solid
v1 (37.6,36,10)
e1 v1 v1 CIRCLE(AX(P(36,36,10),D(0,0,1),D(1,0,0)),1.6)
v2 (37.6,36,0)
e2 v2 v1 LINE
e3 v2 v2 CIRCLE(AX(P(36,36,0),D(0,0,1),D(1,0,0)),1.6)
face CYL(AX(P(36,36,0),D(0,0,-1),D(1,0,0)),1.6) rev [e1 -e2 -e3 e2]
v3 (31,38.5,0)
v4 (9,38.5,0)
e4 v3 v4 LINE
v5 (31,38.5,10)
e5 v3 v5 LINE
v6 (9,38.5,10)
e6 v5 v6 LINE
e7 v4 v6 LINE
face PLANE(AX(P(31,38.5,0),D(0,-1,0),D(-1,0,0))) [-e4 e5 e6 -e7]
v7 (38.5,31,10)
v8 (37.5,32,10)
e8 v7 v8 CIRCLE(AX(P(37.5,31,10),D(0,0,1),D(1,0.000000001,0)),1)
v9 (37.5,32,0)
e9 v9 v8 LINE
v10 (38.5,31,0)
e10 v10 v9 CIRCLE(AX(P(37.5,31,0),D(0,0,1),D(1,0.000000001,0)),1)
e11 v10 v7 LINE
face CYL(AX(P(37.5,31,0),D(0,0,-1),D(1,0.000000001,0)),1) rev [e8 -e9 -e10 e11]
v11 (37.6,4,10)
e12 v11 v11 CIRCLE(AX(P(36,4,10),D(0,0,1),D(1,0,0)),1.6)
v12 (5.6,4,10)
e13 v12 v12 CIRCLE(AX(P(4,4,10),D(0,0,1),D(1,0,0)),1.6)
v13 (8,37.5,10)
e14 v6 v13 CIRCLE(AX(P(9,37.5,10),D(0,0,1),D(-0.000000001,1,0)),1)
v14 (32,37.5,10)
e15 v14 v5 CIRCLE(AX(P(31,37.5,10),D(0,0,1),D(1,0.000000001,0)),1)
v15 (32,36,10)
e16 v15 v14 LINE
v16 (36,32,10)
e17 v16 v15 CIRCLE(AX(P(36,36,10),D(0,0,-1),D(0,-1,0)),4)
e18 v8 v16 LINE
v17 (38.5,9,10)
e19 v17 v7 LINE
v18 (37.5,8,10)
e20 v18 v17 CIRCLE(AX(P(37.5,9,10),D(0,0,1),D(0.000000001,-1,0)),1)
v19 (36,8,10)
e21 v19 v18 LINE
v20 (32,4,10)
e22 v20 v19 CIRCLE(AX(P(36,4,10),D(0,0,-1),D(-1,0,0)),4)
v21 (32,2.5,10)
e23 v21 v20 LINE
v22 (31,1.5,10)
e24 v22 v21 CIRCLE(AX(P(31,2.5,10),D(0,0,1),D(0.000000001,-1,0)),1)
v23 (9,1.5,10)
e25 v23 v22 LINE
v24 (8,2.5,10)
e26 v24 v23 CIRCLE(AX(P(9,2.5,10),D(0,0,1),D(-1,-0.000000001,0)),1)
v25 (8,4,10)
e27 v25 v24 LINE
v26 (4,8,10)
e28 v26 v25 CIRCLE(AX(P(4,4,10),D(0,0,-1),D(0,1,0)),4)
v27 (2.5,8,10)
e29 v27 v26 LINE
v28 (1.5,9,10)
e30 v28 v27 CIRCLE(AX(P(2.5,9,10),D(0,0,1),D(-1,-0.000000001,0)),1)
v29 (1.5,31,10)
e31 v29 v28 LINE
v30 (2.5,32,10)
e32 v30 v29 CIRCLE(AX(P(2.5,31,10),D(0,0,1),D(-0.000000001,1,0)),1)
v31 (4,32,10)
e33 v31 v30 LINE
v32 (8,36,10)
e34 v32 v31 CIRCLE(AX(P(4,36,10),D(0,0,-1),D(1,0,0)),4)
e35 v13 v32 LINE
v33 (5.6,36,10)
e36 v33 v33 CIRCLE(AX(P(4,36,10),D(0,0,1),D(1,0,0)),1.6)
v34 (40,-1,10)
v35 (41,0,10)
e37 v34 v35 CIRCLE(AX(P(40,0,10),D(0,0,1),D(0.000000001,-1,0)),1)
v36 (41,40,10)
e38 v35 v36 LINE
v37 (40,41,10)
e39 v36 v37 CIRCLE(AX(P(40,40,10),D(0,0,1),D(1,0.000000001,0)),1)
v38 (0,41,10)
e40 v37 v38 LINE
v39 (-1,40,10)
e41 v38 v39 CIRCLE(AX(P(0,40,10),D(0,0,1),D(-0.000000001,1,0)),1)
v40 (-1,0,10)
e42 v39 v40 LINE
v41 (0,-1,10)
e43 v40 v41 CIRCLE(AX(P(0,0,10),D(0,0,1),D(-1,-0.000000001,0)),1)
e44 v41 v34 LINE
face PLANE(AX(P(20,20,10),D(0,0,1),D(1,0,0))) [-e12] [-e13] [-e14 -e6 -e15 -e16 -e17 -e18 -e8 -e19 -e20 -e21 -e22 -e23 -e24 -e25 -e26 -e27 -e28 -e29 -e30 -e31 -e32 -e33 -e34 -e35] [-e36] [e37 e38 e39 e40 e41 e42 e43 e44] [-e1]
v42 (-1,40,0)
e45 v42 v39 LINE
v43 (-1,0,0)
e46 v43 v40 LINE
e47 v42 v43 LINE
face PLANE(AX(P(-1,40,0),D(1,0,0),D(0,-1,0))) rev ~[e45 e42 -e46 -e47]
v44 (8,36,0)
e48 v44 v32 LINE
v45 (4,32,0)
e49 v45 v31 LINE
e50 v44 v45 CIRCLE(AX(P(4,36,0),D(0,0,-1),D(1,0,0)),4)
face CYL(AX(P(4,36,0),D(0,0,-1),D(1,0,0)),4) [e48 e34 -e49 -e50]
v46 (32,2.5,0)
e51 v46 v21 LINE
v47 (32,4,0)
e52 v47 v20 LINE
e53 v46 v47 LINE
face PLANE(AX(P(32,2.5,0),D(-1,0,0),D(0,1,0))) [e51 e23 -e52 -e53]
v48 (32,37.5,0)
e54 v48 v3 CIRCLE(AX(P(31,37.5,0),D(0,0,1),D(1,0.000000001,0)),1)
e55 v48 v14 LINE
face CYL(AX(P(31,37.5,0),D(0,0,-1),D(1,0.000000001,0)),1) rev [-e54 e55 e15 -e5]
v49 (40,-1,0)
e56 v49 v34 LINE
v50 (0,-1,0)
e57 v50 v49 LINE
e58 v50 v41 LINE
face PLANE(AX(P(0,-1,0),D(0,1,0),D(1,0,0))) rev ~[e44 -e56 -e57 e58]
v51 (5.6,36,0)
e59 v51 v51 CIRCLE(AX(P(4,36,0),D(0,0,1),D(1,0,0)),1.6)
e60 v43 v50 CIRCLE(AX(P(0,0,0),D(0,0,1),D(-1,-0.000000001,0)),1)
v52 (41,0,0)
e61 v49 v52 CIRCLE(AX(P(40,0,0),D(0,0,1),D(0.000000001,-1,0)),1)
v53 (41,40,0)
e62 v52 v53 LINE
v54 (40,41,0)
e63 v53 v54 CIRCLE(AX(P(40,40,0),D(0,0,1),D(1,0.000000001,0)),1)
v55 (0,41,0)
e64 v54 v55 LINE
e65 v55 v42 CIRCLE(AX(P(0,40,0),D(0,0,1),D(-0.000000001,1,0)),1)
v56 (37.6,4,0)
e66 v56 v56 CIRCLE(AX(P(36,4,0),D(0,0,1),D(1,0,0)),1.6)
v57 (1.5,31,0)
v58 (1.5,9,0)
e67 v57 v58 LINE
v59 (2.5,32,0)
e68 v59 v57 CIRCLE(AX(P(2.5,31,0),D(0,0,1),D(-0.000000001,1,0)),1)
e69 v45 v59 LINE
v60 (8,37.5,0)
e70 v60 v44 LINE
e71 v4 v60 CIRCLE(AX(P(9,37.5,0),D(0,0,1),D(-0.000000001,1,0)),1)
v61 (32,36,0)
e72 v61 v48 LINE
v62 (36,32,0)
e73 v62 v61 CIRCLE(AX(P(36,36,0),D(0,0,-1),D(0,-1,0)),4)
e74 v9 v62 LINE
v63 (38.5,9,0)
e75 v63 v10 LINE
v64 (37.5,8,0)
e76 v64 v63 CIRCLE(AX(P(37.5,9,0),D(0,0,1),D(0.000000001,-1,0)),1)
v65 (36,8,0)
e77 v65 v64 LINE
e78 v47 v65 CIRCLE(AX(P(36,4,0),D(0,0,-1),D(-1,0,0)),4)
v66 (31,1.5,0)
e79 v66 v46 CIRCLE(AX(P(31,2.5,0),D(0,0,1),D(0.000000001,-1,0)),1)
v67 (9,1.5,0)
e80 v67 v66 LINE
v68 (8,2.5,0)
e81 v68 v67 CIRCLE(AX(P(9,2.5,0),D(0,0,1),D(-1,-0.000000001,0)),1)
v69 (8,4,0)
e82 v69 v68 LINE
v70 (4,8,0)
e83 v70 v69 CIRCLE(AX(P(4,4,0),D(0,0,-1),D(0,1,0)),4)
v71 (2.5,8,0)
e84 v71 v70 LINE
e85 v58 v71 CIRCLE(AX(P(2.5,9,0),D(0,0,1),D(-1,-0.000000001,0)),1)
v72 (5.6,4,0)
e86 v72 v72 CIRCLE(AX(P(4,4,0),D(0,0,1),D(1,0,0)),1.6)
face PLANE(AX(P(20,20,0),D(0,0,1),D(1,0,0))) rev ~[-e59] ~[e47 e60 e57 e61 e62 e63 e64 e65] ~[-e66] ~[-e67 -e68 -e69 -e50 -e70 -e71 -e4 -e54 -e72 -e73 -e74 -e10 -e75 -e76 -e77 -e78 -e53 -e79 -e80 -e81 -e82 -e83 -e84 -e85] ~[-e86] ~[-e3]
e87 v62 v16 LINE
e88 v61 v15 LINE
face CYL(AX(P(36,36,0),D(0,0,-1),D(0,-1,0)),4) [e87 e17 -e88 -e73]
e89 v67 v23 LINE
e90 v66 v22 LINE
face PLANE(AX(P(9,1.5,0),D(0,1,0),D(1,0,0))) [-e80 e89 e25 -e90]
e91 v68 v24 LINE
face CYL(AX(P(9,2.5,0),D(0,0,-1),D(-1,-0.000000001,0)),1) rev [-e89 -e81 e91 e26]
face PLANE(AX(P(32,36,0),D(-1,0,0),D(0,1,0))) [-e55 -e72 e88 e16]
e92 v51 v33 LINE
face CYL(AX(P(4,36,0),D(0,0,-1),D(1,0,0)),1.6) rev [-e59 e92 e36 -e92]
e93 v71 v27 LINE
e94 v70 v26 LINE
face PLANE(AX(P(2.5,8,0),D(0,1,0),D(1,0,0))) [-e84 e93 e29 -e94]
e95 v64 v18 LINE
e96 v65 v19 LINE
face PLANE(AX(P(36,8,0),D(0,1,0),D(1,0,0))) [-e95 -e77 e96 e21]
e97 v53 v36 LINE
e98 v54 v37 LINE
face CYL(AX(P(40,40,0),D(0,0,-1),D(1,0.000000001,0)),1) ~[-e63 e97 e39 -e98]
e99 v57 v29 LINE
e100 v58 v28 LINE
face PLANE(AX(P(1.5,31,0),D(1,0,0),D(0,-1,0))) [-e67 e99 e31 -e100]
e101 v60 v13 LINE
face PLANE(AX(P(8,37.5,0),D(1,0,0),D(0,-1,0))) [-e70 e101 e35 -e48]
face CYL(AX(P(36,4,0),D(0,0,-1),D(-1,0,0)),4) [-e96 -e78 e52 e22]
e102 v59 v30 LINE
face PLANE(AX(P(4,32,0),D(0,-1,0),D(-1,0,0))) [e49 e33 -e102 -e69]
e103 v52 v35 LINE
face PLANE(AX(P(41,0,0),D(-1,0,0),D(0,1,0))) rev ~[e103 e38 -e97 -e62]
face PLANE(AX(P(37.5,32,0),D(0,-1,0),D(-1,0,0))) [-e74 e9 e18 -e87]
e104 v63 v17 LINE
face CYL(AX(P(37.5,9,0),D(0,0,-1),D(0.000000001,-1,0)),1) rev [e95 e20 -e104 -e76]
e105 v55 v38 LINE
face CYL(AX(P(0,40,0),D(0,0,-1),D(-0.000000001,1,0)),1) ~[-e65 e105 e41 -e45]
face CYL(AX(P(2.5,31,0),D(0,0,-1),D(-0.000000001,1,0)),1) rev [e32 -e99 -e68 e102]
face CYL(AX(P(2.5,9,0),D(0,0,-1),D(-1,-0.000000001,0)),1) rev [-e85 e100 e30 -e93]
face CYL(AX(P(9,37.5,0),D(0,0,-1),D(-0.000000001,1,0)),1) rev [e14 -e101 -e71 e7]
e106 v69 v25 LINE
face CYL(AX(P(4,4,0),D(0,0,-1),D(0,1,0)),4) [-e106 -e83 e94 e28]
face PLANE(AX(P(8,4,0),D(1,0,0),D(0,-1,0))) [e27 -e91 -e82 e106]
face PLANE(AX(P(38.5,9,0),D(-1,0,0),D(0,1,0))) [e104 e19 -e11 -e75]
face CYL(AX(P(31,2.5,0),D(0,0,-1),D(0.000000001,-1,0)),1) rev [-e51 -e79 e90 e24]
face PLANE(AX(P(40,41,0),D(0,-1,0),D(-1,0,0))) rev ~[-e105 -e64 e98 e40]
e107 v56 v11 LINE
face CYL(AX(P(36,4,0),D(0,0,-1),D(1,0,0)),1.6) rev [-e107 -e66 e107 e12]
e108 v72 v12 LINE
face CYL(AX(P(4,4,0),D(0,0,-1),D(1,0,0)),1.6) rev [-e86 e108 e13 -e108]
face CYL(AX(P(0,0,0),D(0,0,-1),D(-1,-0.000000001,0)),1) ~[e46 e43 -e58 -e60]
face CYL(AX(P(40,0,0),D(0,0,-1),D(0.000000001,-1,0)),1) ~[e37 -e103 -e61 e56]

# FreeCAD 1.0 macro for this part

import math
import FreeCAD as App
import Part
import Sketcher

V = App.Vector

doc = App.newDocument("Part")
params = doc.addObject("Spreadsheet::Sheet", "Params")
for row, (alias, value) in enumerate([
    ("sketch1_radius", "1 mm"),
    ("sketch1_radius2", "4 mm"),
    ("sketch1_diameter", "3.2 mm"),
    ("sketch1_width", "40 mm"),
    ("sketch1_width2", "22 mm"),
    ("pad1_length", "10 mm"),
], start=1):
    params.set(f"A{row}", alias)
    params.set(f"B{row}", "=" + value)
    params.setAlias(f"B{row}", alias)

body = doc.addObject("PartDesign::Body", "Body")

# Sketch on XY plane
sketch1 = body.newObject("Sketcher::SketchObject", "Sketch")
sketch1.AttachmentSupport = (doc.getObject("XY_Plane"), [""])
sketch1.MapMode = "FlatFace"
sketch1.addGeometry([
    Part.LineSegment(V(0, -1, 0), V(40, -1, 0)),  # 0
    Part.ArcOfCircle(Part.Circle(V(40, 0, 0), V(0, 0, 1), 1), math.radians(-90), math.radians(0)),  # 1
    Part.LineSegment(V(41, 0, 0), V(41, 40, 0)),  # 2
    Part.ArcOfCircle(Part.Circle(V(40, 40, 0), V(0, 0, 1), 1), math.radians(0), math.radians(90)),  # 3
    Part.LineSegment(V(40, 41, 0), V(0, 41, 0)),  # 4
    Part.ArcOfCircle(Part.Circle(V(0, 40, 0), V(0, 0, 1), 1), math.radians(90), math.radians(180)),  # 5
    Part.LineSegment(V(-1, 40, 0), V(-1, 0, 0)),  # 6
    Part.ArcOfCircle(Part.Circle(V(0, 0, 0), V(0, 0, 1), 1), math.radians(-180), math.radians(-90)),  # 7
    Part.Circle(V(4, 4, 0), V(0, 0, 1), 1.6),  # 8
    Part.Circle(V(36, 4, 0), V(0, 0, 1), 1.6),  # 9
    Part.Circle(V(4, 36, 0), V(0, 0, 1), 1.6),  # 10
    Part.LineSegment(V(37.5, 8, 0), V(36, 8, 0)),  # 11
    Part.ArcOfCircle(Part.Circle(V(36, 4, 0), V(0, 0, 1), 4), math.radians(90), math.radians(180)),  # 12
    Part.LineSegment(V(32, 4, 0), V(32, 2.5, 0)),  # 13
    Part.ArcOfCircle(Part.Circle(V(31, 2.5, 0), V(0, 0, 1), 1), math.radians(-90), math.radians(0)),  # 14
    Part.LineSegment(V(31, 1.5, 0), V(9, 1.5, 0)),  # 15
    Part.ArcOfCircle(Part.Circle(V(9, 2.5, 0), V(0, 0, 1), 1), math.radians(-180), math.radians(-90)),  # 16
    Part.LineSegment(V(8, 2.5, 0), V(8, 4, 0)),  # 17
    Part.ArcOfCircle(Part.Circle(V(4, 4, 0), V(0, 0, 1), 4), math.radians(0), math.radians(90)),  # 18
    Part.LineSegment(V(4, 8, 0), V(2.5, 8, 0)),  # 19
    Part.ArcOfCircle(Part.Circle(V(2.5, 9, 0), V(0, 0, 1), 1), math.radians(-180), math.radians(-90)),  # 20
    Part.LineSegment(V(1.5, 9, 0), V(1.5, 31, 0)),  # 21
    Part.ArcOfCircle(Part.Circle(V(2.5, 31, 0), V(0, 0, 1), 1), math.radians(90), math.radians(180)),  # 22
    Part.LineSegment(V(2.5, 32, 0), V(4, 32, 0)),  # 23
    Part.ArcOfCircle(Part.Circle(V(4, 36, 0), V(0, 0, 1), 4), math.radians(-90), math.radians(0)),  # 24
    Part.LineSegment(V(8, 36, 0), V(8, 37.5, 0)),  # 25
    Part.ArcOfCircle(Part.Circle(V(9, 37.5, 0), V(0, 0, 1), 1), math.radians(90), math.radians(180)),  # 26
    Part.LineSegment(V(9, 38.5, 0), V(31, 38.5, 0)),  # 27
    Part.ArcOfCircle(Part.Circle(V(31, 37.5, 0), V(0, 0, 1), 1), math.radians(0), math.radians(90)),  # 28
    Part.LineSegment(V(32, 37.5, 0), V(32, 36, 0)),  # 29
    Part.ArcOfCircle(Part.Circle(V(36, 36, 0), V(0, 0, 1), 4), math.radians(180), math.radians(270)),  # 30
    Part.LineSegment(V(36, 32, 0), V(37.5, 32, 0)),  # 31
    Part.ArcOfCircle(Part.Circle(V(37.5, 31, 0), V(0, 0, 1), 1), math.radians(0), math.radians(90)),  # 32
    Part.LineSegment(V(38.5, 31, 0), V(38.5, 9, 0)),  # 33
    Part.ArcOfCircle(Part.Circle(V(37.5, 9, 0), V(0, 0, 1), 1), math.radians(-90), math.radians(0)),  # 34
    Part.Circle(V(36, 36, 0), V(0, 0, 1), 1.6),  # 35
], False)
sketch1.addConstraint([
    Sketcher.Constraint("Tangent", 0, 2, 1, 1),
    Sketcher.Constraint("Tangent", 1, 2, 2, 1),
    Sketcher.Constraint("Tangent", 2, 2, 3, 1),
    Sketcher.Constraint("Tangent", 3, 2, 4, 1),
    Sketcher.Constraint("Tangent", 4, 2, 5, 1),
    Sketcher.Constraint("Tangent", 5, 2, 6, 1),
    Sketcher.Constraint("Tangent", 6, 2, 7, 1),
    Sketcher.Constraint("Tangent", 7, 2, 0, 1),
    Sketcher.Constraint("Tangent", 11, 2, 12, 1),
    Sketcher.Constraint("Tangent", 12, 2, 13, 1),
    Sketcher.Constraint("Tangent", 13, 2, 14, 2),
    Sketcher.Constraint("Tangent", 14, 1, 15, 1),
    Sketcher.Constraint("Tangent", 15, 2, 16, 2),
    Sketcher.Constraint("Tangent", 16, 1, 17, 1),
    Sketcher.Constraint("Tangent", 17, 2, 18, 1),
    Sketcher.Constraint("Tangent", 18, 2, 19, 1),
    Sketcher.Constraint("Tangent", 19, 2, 20, 2),
    Sketcher.Constraint("Tangent", 20, 1, 21, 1),
    Sketcher.Constraint("Tangent", 21, 2, 22, 2),
    Sketcher.Constraint("Tangent", 22, 1, 23, 1),
    Sketcher.Constraint("Tangent", 23, 2, 24, 1),
    Sketcher.Constraint("Tangent", 24, 2, 25, 1),
    Sketcher.Constraint("Tangent", 25, 2, 26, 2),
    Sketcher.Constraint("Tangent", 26, 1, 27, 1),
    Sketcher.Constraint("Tangent", 27, 2, 28, 2),
    Sketcher.Constraint("Tangent", 28, 1, 29, 1),
    Sketcher.Constraint("Tangent", 29, 2, 30, 1),
    Sketcher.Constraint("Tangent", 30, 2, 31, 1),
    Sketcher.Constraint("Tangent", 31, 2, 32, 2),
    Sketcher.Constraint("Tangent", 32, 1, 33, 1),
    Sketcher.Constraint("Tangent", 33, 2, 34, 2),
    Sketcher.Constraint("Tangent", 34, 1, 11, 1),
    Sketcher.Constraint("Horizontal", 0),
    Sketcher.Constraint("Vertical", 2),
    Sketcher.Constraint("Horizontal", 4),
    Sketcher.Constraint("Vertical", 6),
    Sketcher.Constraint("Horizontal", 11),
    Sketcher.Constraint("Vertical", 13),
    Sketcher.Constraint("Horizontal", 15),
    Sketcher.Constraint("Vertical", 17),
    Sketcher.Constraint("Horizontal", 19),
    Sketcher.Constraint("Vertical", 21),
    Sketcher.Constraint("Horizontal", 23),
    Sketcher.Constraint("Vertical", 25),
    Sketcher.Constraint("Horizontal", 27),
    Sketcher.Constraint("Vertical", 29),
    Sketcher.Constraint("Horizontal", 31),
    Sketcher.Constraint("Vertical", 33),
    Sketcher.Constraint("Coincident", 7, 3, -1, 1),
    Sketcher.Constraint("Coincident", 12, 3, 9, 3),
    Sketcher.Constraint("Coincident", 18, 3, 8, 3),
    Sketcher.Constraint("Coincident", 24, 3, 10, 3),
    Sketcher.Constraint("Coincident", 35, 3, 30, 3),
    Sketcher.Constraint("Equal", 1, 3),
    Sketcher.Constraint("Equal", 3, 5),
    Sketcher.Constraint("Equal", 5, 7),
    Sketcher.Constraint("Equal", 8, 9),
    Sketcher.Constraint("Equal", 9, 10),
    Sketcher.Constraint("Equal", 7, 14),
    Sketcher.Constraint("Equal", 14, 16),
    Sketcher.Constraint("Equal", 12, 18),
    Sketcher.Constraint("Equal", 16, 20),
    Sketcher.Constraint("Equal", 20, 22),
    Sketcher.Constraint("Equal", 18, 24),
    Sketcher.Constraint("Equal", 22, 26),
    Sketcher.Constraint("Equal", 26, 28),
    Sketcher.Constraint("Equal", 24, 30),
    Sketcher.Constraint("Equal", 28, 32),
    Sketcher.Constraint("Equal", 32, 34),
    Sketcher.Constraint("Equal", 10, 35),
    Sketcher.Constraint("Horizontal", 8, 3, 9, 3),
    Sketcher.Constraint("Horizontal", 24, 3, 30, 3),
    Sketcher.Constraint("Vertical", 8, 3, 10, 3),
    Sketcher.Constraint("Vertical", 14, 3, 28, 3),
    Sketcher.Constraint("Equal", 11, 19),
    Sketcher.Constraint("Equal", 4, 2),
    Sketcher.Constraint("Equal", 31, 13),
    Sketcher.Constraint("Equal", 27, 21),
    Sketcher.Constraint("Equal", 17, 25),
    Sketcher.Constraint("Radius", 1, 1.0),
    Sketcher.Constraint("Radius", 12, 4.0),
    Sketcher.Constraint("Diameter", 8, 3.2),
    Sketcher.Constraint("DistanceX", 0, 1, 0, 2, 40.0),
    Sketcher.Constraint("DistanceX", 15, 2, 15, 1, 22.0),
    Sketcher.Constraint("DistanceX", 11, 2, 11, 1, 1.5),
    Sketcher.Constraint("DistanceX", -1, 1, 8, 3, 4.0),
    Sketcher.Constraint("DistanceY", -1, 1, 8, 3, 4.0),
])
sketch1.setExpression("Constraints[79]", "Params.sketch1_radius")
sketch1.setExpression("Constraints[80]", "Params.sketch1_radius2")
sketch1.setExpression("Constraints[81]", "Params.sketch1_diameter")
sketch1.setExpression("Constraints[82]", "Params.sketch1_width")
sketch1.setExpression("Constraints[83]", "Params.sketch1_width2")
pad1 = body.newObject("PartDesign::Pad", "Pad")
pad1.Profile = sketch1
pad1.setExpression("Length", "Params.pad1_length")

doc.recompute()
